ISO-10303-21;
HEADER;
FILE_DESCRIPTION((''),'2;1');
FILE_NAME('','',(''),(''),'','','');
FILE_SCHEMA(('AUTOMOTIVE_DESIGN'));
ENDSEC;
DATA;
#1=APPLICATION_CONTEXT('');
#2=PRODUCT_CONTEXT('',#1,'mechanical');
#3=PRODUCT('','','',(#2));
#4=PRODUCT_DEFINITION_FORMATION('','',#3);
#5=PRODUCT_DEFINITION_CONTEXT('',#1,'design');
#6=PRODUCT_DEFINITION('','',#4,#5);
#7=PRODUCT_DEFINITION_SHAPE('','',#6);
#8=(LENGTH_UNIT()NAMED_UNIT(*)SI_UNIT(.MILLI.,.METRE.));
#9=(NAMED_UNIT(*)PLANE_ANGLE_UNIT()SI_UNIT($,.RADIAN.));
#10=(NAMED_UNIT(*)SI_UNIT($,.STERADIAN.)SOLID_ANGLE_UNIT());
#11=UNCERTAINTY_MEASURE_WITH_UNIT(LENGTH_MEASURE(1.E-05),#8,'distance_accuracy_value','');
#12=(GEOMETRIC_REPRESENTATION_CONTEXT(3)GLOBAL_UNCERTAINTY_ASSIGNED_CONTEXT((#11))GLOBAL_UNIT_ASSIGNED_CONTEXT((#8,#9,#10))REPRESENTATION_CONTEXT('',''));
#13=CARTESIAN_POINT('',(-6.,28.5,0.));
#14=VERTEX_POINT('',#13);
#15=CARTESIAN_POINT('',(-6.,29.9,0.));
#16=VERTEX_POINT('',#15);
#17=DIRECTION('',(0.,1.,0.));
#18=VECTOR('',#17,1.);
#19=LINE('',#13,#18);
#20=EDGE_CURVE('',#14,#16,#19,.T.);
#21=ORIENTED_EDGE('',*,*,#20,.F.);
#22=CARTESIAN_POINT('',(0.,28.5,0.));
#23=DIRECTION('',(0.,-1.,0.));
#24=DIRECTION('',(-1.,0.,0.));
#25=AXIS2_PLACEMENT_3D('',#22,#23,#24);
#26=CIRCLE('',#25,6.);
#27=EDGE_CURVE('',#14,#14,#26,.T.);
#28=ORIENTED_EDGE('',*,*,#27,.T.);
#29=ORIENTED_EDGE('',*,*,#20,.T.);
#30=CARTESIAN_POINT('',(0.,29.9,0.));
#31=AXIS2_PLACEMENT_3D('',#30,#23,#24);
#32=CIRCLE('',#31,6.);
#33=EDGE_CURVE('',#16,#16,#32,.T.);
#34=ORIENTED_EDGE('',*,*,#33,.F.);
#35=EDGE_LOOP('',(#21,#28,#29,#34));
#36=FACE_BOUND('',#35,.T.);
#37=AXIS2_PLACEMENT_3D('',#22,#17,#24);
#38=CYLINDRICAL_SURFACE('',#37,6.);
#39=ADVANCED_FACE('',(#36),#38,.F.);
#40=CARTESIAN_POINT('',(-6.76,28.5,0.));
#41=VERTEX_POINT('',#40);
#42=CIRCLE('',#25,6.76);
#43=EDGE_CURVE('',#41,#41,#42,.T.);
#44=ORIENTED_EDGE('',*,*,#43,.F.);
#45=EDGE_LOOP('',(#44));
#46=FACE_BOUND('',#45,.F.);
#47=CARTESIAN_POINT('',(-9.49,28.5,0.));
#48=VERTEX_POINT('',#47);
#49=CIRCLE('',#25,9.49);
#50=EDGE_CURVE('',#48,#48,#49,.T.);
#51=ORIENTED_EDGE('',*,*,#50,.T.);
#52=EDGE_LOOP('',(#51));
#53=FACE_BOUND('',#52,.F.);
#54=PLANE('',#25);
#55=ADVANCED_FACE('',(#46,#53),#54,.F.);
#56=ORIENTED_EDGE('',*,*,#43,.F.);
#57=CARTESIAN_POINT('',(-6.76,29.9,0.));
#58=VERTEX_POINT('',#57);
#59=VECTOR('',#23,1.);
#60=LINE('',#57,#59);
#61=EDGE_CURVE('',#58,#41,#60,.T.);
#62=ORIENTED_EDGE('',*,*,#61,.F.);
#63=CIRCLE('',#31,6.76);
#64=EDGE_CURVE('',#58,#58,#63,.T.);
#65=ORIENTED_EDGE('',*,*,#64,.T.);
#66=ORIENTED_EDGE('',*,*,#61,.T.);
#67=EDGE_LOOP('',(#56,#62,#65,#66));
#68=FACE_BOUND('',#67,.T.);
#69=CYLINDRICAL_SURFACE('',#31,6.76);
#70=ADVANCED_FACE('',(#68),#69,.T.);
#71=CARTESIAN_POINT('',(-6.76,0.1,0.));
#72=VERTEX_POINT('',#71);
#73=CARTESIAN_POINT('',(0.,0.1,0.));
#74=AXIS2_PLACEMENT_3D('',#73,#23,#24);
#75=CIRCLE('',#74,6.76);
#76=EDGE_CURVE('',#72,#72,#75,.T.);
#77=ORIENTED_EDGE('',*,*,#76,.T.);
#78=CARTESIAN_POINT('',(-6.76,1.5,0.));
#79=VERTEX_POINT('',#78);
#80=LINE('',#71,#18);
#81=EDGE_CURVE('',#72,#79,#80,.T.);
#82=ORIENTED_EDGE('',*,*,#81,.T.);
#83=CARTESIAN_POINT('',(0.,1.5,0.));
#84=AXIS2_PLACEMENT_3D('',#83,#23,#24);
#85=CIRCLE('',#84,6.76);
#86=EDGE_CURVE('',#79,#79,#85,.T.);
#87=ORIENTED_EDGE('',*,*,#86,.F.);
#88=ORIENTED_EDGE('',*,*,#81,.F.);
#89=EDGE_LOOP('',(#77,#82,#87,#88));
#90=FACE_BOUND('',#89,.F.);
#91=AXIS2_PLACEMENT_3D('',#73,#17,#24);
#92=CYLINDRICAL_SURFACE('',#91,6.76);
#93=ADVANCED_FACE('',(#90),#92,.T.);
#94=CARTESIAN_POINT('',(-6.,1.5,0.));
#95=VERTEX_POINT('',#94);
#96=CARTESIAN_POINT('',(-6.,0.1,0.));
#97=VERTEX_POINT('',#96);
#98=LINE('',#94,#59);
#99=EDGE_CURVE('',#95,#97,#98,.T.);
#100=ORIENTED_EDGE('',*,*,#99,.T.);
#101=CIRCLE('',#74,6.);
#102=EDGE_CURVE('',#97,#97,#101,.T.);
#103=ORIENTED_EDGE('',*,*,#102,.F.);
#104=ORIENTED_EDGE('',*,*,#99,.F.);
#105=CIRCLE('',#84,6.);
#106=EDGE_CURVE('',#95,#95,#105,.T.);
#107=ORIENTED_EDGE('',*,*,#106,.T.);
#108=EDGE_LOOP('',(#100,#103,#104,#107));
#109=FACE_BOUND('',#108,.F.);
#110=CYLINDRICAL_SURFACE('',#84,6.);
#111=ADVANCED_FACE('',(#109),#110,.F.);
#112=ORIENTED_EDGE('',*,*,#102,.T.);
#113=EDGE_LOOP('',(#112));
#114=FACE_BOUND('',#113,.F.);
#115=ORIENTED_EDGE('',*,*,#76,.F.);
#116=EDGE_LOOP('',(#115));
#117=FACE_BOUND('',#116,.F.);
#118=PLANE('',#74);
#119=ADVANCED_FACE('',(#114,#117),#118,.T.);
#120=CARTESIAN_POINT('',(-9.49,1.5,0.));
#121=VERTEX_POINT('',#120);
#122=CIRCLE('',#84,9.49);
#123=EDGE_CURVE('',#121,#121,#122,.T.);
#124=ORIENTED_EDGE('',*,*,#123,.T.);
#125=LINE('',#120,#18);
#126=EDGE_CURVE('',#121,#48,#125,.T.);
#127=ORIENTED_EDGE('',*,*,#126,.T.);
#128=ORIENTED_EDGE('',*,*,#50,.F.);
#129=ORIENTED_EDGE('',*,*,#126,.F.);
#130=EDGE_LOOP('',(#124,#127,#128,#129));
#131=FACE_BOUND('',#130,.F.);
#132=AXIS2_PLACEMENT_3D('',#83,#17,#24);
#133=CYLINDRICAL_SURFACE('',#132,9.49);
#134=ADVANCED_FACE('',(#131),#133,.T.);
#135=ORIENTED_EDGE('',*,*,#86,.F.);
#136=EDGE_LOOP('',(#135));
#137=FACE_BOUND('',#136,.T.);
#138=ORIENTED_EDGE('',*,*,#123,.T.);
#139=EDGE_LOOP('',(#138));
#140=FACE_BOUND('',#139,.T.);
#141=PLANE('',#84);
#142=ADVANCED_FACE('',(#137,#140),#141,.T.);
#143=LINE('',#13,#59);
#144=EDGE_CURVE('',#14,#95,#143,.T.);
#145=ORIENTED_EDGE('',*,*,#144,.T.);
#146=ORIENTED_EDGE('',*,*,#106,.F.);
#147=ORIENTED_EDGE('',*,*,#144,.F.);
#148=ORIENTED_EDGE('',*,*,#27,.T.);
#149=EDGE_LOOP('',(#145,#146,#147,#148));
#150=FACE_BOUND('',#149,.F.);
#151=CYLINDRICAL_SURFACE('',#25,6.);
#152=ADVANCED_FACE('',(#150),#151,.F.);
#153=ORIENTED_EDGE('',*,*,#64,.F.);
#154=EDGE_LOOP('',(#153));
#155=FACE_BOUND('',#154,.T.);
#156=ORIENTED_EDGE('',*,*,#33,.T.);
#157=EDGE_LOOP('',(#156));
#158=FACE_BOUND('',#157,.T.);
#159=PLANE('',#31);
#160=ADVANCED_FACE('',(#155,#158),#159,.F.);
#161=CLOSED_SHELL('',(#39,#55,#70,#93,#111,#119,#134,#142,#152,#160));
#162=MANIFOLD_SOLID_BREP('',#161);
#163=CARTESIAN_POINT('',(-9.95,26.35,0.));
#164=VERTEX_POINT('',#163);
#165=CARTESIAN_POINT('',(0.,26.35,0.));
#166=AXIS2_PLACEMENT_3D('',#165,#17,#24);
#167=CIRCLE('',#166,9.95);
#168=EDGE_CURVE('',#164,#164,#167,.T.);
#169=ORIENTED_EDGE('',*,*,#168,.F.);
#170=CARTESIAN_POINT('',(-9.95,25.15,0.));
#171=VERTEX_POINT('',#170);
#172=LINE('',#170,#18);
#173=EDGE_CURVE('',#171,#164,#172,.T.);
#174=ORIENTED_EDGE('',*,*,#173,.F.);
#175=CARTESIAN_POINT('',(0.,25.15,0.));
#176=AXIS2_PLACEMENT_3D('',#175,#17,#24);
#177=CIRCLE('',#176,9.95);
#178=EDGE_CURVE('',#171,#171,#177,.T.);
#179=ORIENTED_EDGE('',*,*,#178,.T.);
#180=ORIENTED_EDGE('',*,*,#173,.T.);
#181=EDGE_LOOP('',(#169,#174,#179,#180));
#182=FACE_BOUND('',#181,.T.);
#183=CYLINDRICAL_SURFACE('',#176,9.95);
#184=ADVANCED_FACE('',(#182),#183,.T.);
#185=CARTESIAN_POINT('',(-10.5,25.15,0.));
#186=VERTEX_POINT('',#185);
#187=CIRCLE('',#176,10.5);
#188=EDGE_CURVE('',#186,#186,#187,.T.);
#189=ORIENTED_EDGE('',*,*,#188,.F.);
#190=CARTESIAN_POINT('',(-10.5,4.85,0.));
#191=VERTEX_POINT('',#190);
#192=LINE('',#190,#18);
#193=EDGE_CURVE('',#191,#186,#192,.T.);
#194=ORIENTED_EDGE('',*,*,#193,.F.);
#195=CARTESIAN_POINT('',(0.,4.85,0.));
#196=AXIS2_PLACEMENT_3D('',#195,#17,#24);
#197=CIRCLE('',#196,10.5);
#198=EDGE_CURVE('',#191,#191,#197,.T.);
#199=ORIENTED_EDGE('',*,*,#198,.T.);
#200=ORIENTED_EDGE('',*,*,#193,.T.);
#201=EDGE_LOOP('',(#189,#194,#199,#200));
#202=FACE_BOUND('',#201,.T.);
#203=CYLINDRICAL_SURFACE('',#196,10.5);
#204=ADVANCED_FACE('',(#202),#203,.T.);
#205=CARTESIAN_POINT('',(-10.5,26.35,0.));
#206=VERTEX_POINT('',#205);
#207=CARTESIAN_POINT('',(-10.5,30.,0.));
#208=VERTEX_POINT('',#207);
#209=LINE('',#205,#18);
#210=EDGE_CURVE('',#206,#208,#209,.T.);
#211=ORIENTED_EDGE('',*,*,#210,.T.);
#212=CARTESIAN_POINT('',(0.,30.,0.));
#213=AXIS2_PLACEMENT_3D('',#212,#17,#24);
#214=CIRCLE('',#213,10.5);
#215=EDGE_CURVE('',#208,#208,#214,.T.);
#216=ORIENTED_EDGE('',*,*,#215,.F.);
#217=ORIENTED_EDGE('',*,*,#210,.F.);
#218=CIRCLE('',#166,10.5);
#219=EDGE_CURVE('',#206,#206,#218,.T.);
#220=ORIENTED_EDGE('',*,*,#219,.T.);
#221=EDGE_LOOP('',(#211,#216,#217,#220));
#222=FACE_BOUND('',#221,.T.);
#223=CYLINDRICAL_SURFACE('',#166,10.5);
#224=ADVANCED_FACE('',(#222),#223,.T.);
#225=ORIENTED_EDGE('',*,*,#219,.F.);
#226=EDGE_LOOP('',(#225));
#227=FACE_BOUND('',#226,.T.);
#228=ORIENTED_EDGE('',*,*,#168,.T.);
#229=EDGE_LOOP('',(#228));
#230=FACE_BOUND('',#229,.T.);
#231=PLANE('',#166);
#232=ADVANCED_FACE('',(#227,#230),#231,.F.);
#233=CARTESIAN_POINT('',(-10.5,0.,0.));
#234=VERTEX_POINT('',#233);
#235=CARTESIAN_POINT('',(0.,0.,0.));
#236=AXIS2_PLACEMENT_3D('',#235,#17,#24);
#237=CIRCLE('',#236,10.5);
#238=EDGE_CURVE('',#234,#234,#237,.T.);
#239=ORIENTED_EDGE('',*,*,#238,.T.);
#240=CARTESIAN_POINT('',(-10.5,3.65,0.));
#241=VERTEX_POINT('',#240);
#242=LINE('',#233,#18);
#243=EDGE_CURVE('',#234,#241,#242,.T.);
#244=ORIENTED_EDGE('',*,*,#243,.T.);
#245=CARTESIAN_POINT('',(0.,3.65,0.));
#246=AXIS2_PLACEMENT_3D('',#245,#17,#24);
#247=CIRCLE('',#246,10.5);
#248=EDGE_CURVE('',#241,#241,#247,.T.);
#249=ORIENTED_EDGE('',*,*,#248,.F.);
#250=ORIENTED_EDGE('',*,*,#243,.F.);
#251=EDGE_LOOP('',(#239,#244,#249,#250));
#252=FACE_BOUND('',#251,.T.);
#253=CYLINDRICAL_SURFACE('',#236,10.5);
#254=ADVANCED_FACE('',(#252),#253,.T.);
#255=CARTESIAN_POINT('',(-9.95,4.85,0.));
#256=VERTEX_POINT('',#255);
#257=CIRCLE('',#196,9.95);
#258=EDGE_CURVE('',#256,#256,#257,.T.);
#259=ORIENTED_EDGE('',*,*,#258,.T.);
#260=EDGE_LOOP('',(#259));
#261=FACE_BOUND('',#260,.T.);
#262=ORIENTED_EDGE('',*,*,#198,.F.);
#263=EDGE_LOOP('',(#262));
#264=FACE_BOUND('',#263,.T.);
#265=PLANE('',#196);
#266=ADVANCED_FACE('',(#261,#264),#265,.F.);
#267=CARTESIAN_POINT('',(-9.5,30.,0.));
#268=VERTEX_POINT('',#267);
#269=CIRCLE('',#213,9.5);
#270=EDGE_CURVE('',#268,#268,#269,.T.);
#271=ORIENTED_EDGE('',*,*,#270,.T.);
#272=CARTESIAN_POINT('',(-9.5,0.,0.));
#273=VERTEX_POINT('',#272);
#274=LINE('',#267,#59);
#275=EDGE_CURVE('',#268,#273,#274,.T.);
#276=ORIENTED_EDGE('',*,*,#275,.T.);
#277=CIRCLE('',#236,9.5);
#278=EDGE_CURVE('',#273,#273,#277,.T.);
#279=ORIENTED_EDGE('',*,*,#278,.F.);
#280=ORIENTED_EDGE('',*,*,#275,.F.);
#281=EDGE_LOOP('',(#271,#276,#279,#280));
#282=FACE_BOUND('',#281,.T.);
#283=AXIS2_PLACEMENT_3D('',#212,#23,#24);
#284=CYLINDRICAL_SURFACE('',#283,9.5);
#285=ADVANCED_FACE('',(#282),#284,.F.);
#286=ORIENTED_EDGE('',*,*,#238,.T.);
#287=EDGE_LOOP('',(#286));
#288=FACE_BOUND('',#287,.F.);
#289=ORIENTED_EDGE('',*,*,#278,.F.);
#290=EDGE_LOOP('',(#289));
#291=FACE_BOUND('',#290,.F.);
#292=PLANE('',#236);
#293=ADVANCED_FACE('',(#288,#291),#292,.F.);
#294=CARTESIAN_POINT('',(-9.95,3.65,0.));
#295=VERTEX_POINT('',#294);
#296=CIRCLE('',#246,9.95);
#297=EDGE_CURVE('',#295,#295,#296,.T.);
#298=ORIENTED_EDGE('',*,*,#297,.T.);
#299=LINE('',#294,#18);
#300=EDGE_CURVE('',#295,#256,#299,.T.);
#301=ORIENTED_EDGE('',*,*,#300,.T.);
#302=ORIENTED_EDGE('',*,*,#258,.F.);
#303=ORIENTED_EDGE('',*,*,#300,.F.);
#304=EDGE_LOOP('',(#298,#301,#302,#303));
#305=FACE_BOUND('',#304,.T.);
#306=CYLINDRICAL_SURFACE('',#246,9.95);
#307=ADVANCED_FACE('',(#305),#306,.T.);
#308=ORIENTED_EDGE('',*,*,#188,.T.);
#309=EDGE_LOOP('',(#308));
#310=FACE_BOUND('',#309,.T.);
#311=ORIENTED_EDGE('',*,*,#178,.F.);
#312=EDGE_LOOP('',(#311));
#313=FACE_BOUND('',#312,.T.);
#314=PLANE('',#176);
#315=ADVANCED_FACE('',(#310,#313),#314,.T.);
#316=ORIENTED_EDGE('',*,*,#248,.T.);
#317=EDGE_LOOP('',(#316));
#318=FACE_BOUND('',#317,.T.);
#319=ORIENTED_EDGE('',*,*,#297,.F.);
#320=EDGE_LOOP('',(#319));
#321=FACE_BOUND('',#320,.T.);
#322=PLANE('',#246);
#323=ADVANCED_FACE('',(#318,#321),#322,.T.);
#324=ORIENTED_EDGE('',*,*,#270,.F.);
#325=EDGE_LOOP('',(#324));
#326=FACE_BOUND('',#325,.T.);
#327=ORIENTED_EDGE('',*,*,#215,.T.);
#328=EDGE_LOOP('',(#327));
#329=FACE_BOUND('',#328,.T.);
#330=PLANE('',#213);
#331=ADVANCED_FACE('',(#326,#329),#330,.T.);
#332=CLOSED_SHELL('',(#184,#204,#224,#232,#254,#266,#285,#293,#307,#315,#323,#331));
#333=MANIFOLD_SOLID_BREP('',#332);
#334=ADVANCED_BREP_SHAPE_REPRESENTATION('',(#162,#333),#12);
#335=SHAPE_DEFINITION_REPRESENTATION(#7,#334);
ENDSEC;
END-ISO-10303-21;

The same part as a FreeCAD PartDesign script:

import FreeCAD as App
import Part
import Sketcher


def add_polygon(sketch, points):
    """Adds a closed chain of lines whose ends are joined by coincident constraints."""
    first, n = sketch.GeometryCount, len(points)
    for a, b in zip(points, points[1:] + points[:1]):
        sketch.addGeometry(Part.LineSegment(App.Vector(*a, 0), App.Vector(*b, 0)), False)
    for i in range(n):
        sketch.addConstraint(Sketcher.Constraint("Coincident", first + i, 2, first + (i + 1) % n, 1))

doc = App.newDocument("Part")
body = doc.addObject("PartDesign::Body", "Body")
body.AllowCompound = True

# Sketch on XY plane
sketch1 = body.newObject("Sketcher::SketchObject", "Sketch")
sketch1.AttachmentSupport = (doc.getObject("XY_Plane"), [""])
sketch1.MapMode = "FlatFace"
add_polygon(sketch1, [(-6.8, 28.5), (-9.5, 28.5), (-9.5, 1.5), (-6.8, 1.5), (-6.8, 0.1), (-6, 0.1), (-6, 29.9), (-6.8, 29.9)])  # lines 0-7
sketch1.addConstraint([
    Sketcher.Constraint("Horizontal", 0),
    Sketcher.Constraint("Vertical", 1),
    Sketcher.Constraint("Horizontal", 2),
    Sketcher.Constraint("Vertical", 3),
    Sketcher.Constraint("Horizontal", 4),
    Sketcher.Constraint("Vertical", 5),
    Sketcher.Constraint("Horizontal", 6),
    Sketcher.Constraint("Vertical", 7),
    Sketcher.Constraint("Vertical", 3, 2, 6, 2),
    Sketcher.Constraint("Equal", 3, 7),
    Sketcher.Constraint("DistanceY", 3, 2, 3, 1, 1.4),
    Sketcher.Constraint("DistanceX", 4, 2, -1, 1, 6.0),
    Sketcher.Constraint("DistanceX", 4, 1, 4, 2, 0.76),
    Sketcher.Constraint("DistanceY", -1, 1, 1, 2, 1.5),
    Sketcher.Constraint("DistanceY", 1, 2, 1, 1, 27.0),
    Sketcher.Constraint("DistanceX", 1, 2, 4, 2, 3.49),
])
revolution = body.newObject("PartDesign::Revolution", "Revolution")
revolution.Profile = sketch1
revolution.ReferenceAxis = (sketch1, ["V_Axis"])
revolution.Angle = 360

# Sketch on XY plane
sketch2 = body.newObject("Sketcher::SketchObject", "Sketch001")
sketch2.AttachmentSupport = (doc.getObject("XY_Plane"), [""])
sketch2.MapMode = "FlatFace"
add_polygon(sketch2, [(-10.5, 3.6), (-10.5, 0), (-9.5, 0), (-9.5, 30), (-10.5, 30), (-10.5, 26.4), (-9.9, 26.4), (-9.9, 25.1), (-10.5, 25.1), (-10.5, 4.8), (-9.9, 4.8), (-9.9, 3.6)])  # lines 0-11
sketch2.addConstraint([
    Sketcher.Constraint("Vertical", 0),
    Sketcher.Constraint("Horizontal", 1),
    Sketcher.Constraint("Vertical", 2),
    Sketcher.Constraint("Horizontal", 3),
    Sketcher.Constraint("Vertical", 4),
    Sketcher.Constraint("Horizontal", 5),
    Sketcher.Constraint("Vertical", 6),
    Sketcher.Constraint("Horizontal", 7),
    Sketcher.Constraint("Vertical", 8),
    Sketcher.Constraint("Horizontal", 9),
    Sketcher.Constraint("Vertical", 10),
    Sketcher.Constraint("Horizontal", 11),
    Sketcher.Constraint("PointOnObject", 0, 2, -1),
    Sketcher.Constraint("Vertical", 0, 2, 3, 2),
    Sketcher.Constraint("Vertical", 4, 2, 7, 2),
    Sketcher.Constraint("Vertical", 6, 2, 9, 2),
    Sketcher.Constraint("Equal", 0, 4),
    Sketcher.Constraint("Equal", 6, 10),
    Sketcher.Constraint("DistanceX", 1, 1, 1, 2, 1.0),
    Sketcher.Constraint("DistanceY", 2, 1, 2, 2, 30.0),
    Sketcher.Constraint("DistanceY", 6, 2, 6, 1, 1.2),
    Sketcher.Constraint("DistanceX", 5, 1, 5, 2, 0.55),
    Sketcher.Constraint("DistanceY", 0, 2, 0, 1, 3.65),
    Sketcher.Constraint("DistanceX", 1, 2, -1, 1, 9.5),
])
revolution2 = body.newObject("PartDesign::Revolution", "Revolution001")
revolution2.Profile = sketch2
revolution2.ReferenceAxis = (sketch2, ["V_Axis"])
revolution2.Angle = 360

doc.recompute()
